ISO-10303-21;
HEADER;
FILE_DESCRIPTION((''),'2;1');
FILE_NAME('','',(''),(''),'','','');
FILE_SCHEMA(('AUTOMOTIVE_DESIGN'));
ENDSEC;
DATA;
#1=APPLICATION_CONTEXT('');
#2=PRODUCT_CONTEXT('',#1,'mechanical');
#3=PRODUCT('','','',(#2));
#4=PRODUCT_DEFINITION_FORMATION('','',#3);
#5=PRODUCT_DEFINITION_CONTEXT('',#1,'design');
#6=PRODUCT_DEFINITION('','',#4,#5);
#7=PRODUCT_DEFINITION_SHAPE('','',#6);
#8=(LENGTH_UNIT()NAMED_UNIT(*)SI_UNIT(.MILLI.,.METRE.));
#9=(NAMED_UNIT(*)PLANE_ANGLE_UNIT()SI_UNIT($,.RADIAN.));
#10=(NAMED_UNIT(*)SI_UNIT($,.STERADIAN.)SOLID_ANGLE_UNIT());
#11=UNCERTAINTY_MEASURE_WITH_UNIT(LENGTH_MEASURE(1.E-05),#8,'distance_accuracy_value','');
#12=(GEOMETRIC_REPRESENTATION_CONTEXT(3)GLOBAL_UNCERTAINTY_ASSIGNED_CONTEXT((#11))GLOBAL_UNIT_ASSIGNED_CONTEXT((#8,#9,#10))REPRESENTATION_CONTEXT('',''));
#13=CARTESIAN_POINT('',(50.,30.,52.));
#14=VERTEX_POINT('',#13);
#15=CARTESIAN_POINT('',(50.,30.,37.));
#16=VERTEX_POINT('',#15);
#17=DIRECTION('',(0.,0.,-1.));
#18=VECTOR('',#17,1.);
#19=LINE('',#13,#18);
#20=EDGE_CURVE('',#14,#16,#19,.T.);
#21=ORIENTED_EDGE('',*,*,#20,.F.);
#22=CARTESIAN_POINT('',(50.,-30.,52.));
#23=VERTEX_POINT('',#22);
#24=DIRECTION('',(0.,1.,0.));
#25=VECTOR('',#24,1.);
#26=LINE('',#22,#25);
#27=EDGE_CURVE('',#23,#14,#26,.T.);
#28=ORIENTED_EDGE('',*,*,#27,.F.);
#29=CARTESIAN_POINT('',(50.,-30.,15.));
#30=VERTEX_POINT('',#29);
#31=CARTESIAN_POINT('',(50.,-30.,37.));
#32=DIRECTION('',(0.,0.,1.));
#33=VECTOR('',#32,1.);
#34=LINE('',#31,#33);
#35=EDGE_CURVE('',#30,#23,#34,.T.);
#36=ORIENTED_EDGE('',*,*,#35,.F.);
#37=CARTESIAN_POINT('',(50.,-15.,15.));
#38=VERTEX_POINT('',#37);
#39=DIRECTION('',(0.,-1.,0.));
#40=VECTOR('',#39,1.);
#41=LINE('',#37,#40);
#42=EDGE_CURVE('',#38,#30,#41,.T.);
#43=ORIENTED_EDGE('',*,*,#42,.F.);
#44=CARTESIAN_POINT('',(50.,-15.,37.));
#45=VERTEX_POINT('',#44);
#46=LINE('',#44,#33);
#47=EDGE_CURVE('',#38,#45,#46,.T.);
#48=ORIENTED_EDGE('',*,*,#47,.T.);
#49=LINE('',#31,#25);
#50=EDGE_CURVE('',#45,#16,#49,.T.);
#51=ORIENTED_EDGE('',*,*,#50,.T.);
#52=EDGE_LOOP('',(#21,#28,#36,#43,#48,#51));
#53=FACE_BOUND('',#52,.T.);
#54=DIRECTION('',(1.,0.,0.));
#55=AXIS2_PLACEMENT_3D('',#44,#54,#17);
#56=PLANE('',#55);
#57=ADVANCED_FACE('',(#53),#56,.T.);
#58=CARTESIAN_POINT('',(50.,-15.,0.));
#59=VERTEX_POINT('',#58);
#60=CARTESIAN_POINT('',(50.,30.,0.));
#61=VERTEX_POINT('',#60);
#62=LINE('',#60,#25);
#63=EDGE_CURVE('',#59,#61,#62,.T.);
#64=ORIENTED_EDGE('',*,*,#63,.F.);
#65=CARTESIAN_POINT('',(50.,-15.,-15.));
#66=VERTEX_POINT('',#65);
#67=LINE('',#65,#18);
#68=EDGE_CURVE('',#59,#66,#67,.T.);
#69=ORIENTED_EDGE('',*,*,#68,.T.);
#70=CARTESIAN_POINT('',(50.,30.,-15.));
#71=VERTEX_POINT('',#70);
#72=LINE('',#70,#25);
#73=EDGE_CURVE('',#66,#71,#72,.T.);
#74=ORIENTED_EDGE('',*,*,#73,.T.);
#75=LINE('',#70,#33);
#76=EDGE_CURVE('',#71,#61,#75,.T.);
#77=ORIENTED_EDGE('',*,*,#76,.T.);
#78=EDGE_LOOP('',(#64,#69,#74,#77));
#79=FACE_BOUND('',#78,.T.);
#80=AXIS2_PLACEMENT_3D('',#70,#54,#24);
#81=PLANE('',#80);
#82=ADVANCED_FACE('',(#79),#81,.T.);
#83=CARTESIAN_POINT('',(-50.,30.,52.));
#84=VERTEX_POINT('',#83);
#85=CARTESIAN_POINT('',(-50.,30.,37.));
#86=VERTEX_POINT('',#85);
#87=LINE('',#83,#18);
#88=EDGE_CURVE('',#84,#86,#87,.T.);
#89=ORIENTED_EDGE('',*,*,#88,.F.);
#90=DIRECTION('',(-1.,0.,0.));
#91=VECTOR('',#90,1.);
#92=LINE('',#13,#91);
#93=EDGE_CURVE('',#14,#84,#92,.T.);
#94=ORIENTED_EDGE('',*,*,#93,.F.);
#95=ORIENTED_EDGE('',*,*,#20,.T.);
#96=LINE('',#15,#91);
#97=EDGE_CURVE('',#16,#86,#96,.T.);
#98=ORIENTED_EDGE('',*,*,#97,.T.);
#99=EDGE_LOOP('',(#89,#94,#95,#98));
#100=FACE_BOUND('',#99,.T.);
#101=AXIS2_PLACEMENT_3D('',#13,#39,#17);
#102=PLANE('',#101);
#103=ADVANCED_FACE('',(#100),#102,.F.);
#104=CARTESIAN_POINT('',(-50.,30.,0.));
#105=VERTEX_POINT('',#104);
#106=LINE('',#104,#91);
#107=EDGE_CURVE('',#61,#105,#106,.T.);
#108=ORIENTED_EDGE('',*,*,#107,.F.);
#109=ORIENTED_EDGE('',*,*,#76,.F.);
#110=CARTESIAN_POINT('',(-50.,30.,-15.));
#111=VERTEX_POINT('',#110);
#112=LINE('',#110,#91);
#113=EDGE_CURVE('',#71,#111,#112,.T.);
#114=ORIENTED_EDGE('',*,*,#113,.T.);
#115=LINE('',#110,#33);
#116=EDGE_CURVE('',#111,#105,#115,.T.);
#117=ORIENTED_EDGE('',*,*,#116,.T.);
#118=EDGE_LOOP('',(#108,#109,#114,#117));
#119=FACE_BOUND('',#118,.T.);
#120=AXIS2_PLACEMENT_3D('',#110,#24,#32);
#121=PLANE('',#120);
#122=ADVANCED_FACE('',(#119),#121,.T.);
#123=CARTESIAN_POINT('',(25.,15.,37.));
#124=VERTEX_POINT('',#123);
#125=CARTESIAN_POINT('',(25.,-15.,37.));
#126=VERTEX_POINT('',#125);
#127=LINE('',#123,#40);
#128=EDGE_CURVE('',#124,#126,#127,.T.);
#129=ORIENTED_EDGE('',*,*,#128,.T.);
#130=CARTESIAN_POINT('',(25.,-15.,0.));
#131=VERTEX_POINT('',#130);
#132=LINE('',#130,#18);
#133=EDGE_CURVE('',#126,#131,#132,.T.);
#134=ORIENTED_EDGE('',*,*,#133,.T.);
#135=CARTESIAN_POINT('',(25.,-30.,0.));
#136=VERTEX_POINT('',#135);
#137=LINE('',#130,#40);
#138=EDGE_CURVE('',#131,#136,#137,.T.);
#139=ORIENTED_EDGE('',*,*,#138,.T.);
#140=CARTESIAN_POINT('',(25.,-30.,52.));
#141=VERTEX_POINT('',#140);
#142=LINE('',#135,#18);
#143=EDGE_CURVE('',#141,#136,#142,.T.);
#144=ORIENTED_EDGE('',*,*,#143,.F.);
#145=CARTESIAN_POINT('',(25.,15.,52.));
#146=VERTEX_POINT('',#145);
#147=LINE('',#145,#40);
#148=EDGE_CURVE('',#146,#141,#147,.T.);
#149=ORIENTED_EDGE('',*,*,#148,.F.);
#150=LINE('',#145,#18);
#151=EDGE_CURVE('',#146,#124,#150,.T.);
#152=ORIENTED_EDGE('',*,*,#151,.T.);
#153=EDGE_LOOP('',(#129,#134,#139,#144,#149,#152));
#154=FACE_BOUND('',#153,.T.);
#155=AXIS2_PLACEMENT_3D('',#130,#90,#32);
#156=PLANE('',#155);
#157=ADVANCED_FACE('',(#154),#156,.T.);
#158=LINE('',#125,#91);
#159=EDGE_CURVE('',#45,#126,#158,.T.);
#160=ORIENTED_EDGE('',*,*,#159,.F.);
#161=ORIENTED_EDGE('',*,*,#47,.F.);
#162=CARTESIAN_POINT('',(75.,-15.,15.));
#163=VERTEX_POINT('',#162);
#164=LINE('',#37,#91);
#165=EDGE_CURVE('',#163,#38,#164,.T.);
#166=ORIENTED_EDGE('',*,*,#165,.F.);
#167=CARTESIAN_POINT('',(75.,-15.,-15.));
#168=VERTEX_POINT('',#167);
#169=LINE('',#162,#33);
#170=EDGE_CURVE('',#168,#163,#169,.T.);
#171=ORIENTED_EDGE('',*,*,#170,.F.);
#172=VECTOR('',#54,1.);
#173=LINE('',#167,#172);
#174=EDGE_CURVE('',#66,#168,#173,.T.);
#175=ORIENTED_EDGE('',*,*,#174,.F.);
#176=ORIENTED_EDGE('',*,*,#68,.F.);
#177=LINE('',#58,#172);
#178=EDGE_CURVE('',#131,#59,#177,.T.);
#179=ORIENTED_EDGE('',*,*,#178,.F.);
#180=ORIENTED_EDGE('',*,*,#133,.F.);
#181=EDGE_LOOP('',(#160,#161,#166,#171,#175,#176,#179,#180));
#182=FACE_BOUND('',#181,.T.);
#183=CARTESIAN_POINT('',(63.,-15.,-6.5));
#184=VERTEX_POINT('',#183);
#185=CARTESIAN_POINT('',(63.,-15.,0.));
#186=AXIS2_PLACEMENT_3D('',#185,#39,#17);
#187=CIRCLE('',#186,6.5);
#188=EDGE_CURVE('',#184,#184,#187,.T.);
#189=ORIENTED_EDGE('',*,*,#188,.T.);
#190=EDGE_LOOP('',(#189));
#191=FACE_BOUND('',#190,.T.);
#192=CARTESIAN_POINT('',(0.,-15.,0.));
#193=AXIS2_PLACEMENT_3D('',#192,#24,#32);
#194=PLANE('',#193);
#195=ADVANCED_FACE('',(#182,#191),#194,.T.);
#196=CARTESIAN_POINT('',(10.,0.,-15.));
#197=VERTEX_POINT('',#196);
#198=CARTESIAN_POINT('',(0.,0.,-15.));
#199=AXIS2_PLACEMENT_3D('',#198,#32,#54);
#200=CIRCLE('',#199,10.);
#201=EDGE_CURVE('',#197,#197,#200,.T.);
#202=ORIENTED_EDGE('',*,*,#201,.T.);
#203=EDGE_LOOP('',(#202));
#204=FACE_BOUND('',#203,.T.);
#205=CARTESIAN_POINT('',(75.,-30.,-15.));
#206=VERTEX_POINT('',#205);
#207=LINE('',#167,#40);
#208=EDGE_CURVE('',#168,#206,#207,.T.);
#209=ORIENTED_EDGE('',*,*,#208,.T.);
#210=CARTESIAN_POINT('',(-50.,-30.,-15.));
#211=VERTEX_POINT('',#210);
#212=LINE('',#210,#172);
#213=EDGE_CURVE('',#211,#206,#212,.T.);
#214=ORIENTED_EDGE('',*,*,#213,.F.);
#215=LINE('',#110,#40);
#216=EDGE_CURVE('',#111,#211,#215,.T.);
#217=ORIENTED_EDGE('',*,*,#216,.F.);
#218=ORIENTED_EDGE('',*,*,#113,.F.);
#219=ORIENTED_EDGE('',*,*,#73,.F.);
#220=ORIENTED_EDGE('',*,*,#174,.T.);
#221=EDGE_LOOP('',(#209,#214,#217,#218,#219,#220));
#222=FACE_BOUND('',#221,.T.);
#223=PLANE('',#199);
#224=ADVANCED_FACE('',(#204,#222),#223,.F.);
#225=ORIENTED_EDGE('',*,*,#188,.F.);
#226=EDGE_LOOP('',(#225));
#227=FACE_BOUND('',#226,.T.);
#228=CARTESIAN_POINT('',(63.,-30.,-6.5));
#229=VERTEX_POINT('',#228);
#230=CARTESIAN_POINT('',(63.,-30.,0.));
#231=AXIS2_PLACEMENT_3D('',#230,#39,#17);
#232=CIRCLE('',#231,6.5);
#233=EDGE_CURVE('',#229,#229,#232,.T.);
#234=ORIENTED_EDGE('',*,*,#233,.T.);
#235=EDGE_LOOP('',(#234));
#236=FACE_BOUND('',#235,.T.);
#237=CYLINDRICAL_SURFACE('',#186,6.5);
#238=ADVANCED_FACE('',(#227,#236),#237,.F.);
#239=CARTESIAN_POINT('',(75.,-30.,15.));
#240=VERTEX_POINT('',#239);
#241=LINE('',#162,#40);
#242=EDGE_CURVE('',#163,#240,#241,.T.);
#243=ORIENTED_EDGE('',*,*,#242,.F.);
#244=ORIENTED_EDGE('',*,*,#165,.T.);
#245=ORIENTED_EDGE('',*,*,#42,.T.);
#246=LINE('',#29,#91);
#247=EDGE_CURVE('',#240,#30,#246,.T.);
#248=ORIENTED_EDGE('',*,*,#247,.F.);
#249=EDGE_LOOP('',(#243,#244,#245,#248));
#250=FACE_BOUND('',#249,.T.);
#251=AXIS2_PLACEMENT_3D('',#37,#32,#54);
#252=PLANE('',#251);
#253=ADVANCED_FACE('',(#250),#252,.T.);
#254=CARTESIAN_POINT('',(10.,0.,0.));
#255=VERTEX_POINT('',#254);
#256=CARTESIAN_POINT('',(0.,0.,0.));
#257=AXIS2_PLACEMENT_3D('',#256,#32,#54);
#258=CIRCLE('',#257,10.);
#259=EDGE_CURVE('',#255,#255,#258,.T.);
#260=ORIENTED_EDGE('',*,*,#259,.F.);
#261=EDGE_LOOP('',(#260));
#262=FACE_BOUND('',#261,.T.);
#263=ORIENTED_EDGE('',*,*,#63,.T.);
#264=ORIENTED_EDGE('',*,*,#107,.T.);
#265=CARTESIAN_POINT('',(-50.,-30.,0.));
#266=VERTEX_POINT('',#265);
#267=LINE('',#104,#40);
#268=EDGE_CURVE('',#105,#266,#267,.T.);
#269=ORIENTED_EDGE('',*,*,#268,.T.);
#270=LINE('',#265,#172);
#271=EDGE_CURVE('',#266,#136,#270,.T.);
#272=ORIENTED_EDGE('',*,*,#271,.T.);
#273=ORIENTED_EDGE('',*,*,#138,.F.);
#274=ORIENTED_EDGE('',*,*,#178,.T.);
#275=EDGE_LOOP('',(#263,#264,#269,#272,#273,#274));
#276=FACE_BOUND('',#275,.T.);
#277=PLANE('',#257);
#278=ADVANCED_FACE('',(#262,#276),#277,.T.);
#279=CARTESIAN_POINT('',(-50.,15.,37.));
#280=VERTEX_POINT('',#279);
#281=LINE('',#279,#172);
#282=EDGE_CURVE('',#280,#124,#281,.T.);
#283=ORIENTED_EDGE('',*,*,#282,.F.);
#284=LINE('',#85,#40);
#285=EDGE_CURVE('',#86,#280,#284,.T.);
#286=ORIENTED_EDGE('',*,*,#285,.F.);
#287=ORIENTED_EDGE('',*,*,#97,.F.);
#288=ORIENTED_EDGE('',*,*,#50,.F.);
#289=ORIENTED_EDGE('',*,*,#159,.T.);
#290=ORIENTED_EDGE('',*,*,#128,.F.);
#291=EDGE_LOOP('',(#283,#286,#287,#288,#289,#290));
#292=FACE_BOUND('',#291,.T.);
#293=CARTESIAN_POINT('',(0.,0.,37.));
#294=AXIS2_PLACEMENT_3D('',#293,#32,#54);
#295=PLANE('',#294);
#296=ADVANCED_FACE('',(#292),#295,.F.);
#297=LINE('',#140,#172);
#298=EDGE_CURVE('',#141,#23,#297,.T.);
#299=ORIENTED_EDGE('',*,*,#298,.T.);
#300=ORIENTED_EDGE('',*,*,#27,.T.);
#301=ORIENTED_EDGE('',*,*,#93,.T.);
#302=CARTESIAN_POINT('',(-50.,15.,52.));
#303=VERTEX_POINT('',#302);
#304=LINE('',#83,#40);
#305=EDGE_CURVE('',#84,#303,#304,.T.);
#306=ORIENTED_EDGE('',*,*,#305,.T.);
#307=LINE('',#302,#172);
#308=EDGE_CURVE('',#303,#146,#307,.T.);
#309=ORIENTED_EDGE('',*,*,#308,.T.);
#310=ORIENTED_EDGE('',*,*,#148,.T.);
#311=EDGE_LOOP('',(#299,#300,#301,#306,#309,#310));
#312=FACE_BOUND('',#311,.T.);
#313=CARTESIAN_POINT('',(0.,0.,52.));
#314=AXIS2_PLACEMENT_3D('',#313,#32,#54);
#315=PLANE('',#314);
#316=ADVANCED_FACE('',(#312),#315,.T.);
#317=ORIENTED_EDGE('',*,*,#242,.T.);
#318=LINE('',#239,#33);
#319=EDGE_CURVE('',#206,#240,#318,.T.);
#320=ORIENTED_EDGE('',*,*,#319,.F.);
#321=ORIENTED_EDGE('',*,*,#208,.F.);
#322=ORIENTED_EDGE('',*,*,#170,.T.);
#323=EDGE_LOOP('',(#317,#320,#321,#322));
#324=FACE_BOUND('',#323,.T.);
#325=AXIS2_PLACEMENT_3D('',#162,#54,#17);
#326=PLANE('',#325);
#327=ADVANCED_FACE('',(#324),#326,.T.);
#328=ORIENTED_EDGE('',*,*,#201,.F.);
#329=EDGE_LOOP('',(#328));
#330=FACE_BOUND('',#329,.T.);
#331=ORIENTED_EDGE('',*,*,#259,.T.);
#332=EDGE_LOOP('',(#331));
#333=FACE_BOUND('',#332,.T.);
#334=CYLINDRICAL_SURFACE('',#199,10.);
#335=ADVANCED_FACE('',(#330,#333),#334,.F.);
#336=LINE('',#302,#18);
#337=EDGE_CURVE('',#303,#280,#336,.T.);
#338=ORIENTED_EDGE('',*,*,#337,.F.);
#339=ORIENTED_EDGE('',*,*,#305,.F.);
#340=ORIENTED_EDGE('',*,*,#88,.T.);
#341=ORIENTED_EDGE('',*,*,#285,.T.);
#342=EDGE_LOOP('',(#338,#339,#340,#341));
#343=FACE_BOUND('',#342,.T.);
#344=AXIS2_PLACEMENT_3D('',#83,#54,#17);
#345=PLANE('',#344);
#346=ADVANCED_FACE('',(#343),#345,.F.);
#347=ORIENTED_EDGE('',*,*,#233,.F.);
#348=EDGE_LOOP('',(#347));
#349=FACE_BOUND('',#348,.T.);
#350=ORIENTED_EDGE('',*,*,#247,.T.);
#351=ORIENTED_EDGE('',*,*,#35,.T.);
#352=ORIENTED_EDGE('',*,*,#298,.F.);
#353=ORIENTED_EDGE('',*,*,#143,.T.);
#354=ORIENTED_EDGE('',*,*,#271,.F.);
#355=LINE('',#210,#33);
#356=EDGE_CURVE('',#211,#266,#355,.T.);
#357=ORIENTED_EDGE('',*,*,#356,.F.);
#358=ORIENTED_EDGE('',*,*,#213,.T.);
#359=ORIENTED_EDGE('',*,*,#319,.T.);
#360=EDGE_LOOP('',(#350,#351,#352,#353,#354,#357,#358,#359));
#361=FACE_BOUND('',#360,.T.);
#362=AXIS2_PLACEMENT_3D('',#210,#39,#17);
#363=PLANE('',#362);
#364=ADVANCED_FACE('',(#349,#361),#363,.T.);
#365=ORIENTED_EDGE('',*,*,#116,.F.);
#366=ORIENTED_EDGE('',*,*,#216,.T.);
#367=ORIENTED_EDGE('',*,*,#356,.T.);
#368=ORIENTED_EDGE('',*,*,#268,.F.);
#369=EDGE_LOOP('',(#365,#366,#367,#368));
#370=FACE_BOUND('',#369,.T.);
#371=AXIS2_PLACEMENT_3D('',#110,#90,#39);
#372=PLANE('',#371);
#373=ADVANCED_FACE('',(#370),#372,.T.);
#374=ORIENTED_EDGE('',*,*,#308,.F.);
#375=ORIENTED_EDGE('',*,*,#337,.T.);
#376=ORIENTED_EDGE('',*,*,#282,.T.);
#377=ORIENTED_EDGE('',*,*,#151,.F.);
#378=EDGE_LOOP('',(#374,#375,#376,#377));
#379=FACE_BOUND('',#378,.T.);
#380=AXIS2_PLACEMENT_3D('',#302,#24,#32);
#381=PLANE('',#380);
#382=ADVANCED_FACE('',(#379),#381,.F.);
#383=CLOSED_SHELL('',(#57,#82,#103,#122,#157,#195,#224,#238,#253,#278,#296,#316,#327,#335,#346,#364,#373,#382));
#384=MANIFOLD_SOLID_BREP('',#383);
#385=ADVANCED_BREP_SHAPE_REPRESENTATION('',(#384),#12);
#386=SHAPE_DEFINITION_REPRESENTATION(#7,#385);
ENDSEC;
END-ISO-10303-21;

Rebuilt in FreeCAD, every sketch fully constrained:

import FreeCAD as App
import Part
import Sketcher

V = App.Vector

doc = App.newDocument("Part")
params = doc.addObject("Spreadsheet::Sheet", "Params")
for row, (alias, value) in enumerate([
    ("sketch1_diameter", "20 mm"),
    ("sketch1_width", "100 mm"),
    ("sketch1_height", "60 mm"),
    ("pad1_length", "15 mm"),
    ("sketch2_width", "75 mm"),
    ("sketch2_width2", "25 mm"),
    ("sketch2_height", "15 mm"),
    ("sketch2_height2", "45 mm"),
    ("pad2_length", "15 mm"),
    ("sketch3_diameter", "13 mm"),
    ("sketch3_width", "25 mm"),
    ("sketch3_height", "37 mm"),
    ("sketch3_height2", "15 mm"),
    ("pad3_length", "15 mm"),
], start=1):
    params.set(f"A{row}", alias)
    params.set(f"B{row}", "=" + value)
    params.setAlias(f"B{row}", alias)

body = doc.addObject("PartDesign::Body", "Body")

sketch1 = doc.addObject("Sketcher::SketchObject", "Sketch")
body.addObject(sketch1)
sketch1.AttachmentSupport = (doc.XY_Plane, [""])
sketch1.MapMode = "FlatFace"
sketch1.addGeometry(Part.LineSegment(V(-50, 30, 0), V(-50, -30, 0)), False)
sketch1.addGeometry(Part.LineSegment(V(-50, -30, 0), V(50, -30, 0)), False)
sketch1.addGeometry(Part.LineSegment(V(50, -30, 0), V(50, 30, 0)), False)
sketch1.addGeometry(Part.LineSegment(V(50, 30, 0), V(-50, 30, 0)), False)
sketch1.addGeometry(Part.Circle(V(0, 0, 0), V(0, 0, 1), 10), False)
sketch1.addConstraint(Sketcher.Constraint("Coincident", 0, 2, 1, 1))
sketch1.addConstraint(Sketcher.Constraint("Coincident", 1, 2, 2, 1))
sketch1.addConstraint(Sketcher.Constraint("Coincident", 2, 2, 3, 1))
sketch1.addConstraint(Sketcher.Constraint("Coincident", 3, 2, 0, 1))
sketch1.addConstraint(Sketcher.Constraint("Vertical", 0))
sketch1.addConstraint(Sketcher.Constraint("Horizontal", 1))
sketch1.addConstraint(Sketcher.Constraint("Vertical", 2))
sketch1.addConstraint(Sketcher.Constraint("Horizontal", 3))
sketch1.addConstraint(Sketcher.Constraint("Coincident", 4, 3, -1, 1))
sketch1.addConstraint(Sketcher.Constraint("Symmetric", 0, 2, 2, 2, -1, 1))
sketch1.addConstraint(Sketcher.Constraint("Diameter", 4, 20.0))
sketch1.addConstraint(Sketcher.Constraint("DistanceX", 1, 1, 1, 2, 100.0))
sketch1.addConstraint(Sketcher.Constraint("DistanceY", 0, 2, 0, 1, 60.0))
sketch1.setExpression("Constraints[10]", "Params.sketch1_diameter")
sketch1.setExpression("Constraints[11]", "Params.sketch1_width")
sketch1.setExpression("Constraints[12]", "Params.sketch1_height")
pad1 = doc.addObject("PartDesign::Pad", "Pad")
body.addObject(pad1)
pad1.Profile = sketch1
pad1.setExpression("Length", "Params.pad1_length")
pad1.Reversed = True
body2 = doc.addObject("PartDesign::Body", "Body001")

sketch2 = doc.addObject("Sketcher::SketchObject", "Sketch001")
body2.addObject(sketch2)
sketch2.AttachmentSupport = (doc.getObject("XY_Plane001"), [""])
sketch2.MapMode = "FlatFace"
sketch2.AttachmentOffset = App.Placement(V(0, 0, 37), App.Rotation())
sketch2.addGeometry(Part.LineSegment(V(-50, 30, 0), V(-50, 15, 0)), False)
sketch2.addGeometry(Part.LineSegment(V(-50, 15, 0), V(25, 15, 0)), False)
sketch2.addGeometry(Part.LineSegment(V(25, 15, 0), V(25, -30, 0)), False)
sketch2.addGeometry(Part.LineSegment(V(25, -30, 0), V(50, -30, 0)), False)
sketch2.addGeometry(Part.LineSegment(V(50, -30, 0), V(50, 30, 0)), False)
sketch2.addGeometry(Part.LineSegment(V(50, 30, 0), V(-50, 30, 0)), False)
sketch2.addConstraint(Sketcher.Constraint("Coincident", 0, 2, 1, 1))
sketch2.addConstraint(Sketcher.Constraint("Coincident", 1, 2, 2, 1))
sketch2.addConstraint(Sketcher.Constraint("Coincident", 2, 2, 3, 1))
sketch2.addConstraint(Sketcher.Constraint("Coincident", 3, 2, 4, 1))
sketch2.addConstraint(Sketcher.Constraint("Coincident", 4, 2, 5, 1))
sketch2.addConstraint(Sketcher.Constraint("Coincident", 5, 2, 0, 1))
sketch2.addConstraint(Sketcher.Constraint("Vertical", 0))
sketch2.addConstraint(Sketcher.Constraint("Horizontal", 1))
sketch2.addConstraint(Sketcher.Constraint("Vertical", 2))
sketch2.addConstraint(Sketcher.Constraint("Horizontal", 3))
sketch2.addConstraint(Sketcher.Constraint("Vertical", 4))
sketch2.addConstraint(Sketcher.Constraint("Horizontal", 5))
sketch2.addConstraint(Sketcher.Constraint("Symmetric", 3, 2, 5, 2, -1, 1))
sketch2.addConstraint(Sketcher.Constraint("DistanceX", 1, 1, 1, 2, 75.0))
sketch2.addConstraint(Sketcher.Constraint("DistanceX", 3, 1, 3, 2, 25.0))
sketch2.addConstraint(Sketcher.Constraint("DistanceY", 0, 2, 0, 1, 15.0))
sketch2.addConstraint(Sketcher.Constraint("DistanceY", 2, 2, 2, 1, 45.0))
sketch2.setExpression("Constraints[13]", "Params.sketch2_width")
sketch2.setExpression("Constraints[14]", "Params.sketch2_width2")
sketch2.setExpression("Constraints[15]", "Params.sketch2_height")
sketch2.setExpression("Constraints[16]", "Params.sketch2_height2")
pad2 = doc.addObject("PartDesign::Pad", "Pad001")
body2.addObject(pad2)
pad2.Profile = sketch2
pad2.setExpression("Length", "Params.pad2_length")
body.AllowCompound = True
doc.recompute()

boolean = doc.addObject("PartDesign::Boolean", "Boolean")
body.addObject(boolean)
boolean.Type = "Fuse"
boolean.addObjects([body2])

sketch3 = doc.addObject("Sketcher::SketchObject", "Sketch002")
body.addObject(sketch3)
sketch3.AttachmentSupport = (doc.XZ_Plane, [""])
sketch3.MapMode = "FlatFace"
sketch3.AttachmentOffset = App.Placement(V(0, 0, 30), App.Rotation())
sketch3.addGeometry(Part.LineSegment(V(25, 37, 0), V(25, 0, 0)), False)
sketch3.addGeometry(Part.LineSegment(V(25, 0, 0), V(50, 0, 0)), False)
sketch3.addGeometry(Part.LineSegment(V(50, 0, 0), V(50, -15, 0)), False)
sketch3.addGeometry(Part.LineSegment(V(50, -15, 0), V(75, -15, 0)), False)
sketch3.addGeometry(Part.LineSegment(V(75, -15, 0), V(75, 15, 0)), False)
sketch3.addGeometry(Part.LineSegment(V(75, 15, 0), V(50, 15, 0)), False)
sketch3.addGeometry(Part.LineSegment(V(50, 15, 0), V(50, 37, 0)), False)
sketch3.addGeometry(Part.LineSegment(V(50, 37, 0), V(25, 37, 0)), False)
sketch3.addGeometry(Part.Circle(V(63, 0, 0), V(0, 0, 1), 6), False)
sketch3.addConstraint(Sketcher.Constraint("Coincident", 0, 2, 1, 1))
sketch3.addConstraint(Sketcher.Constraint("Coincident", 1, 2, 2, 1))
sketch3.addConstraint(Sketcher.Constraint("Coincident", 2, 2, 3, 1))
sketch3.addConstraint(Sketcher.Constraint("Coincident", 3, 2, 4, 1))
sketch3.addConstraint(Sketcher.Constraint("Coincident", 4, 2, 5, 1))
sketch3.addConstraint(Sketcher.Constraint("Coincident", 5, 2, 6, 1))
sketch3.addConstraint(Sketcher.Constraint("Coincident", 6, 2, 7, 1))
sketch3.addConstraint(Sketcher.Constraint("Coincident", 7, 2, 0, 1))
sketch3.addConstraint(Sketcher.Constraint("Vertical", 0))
sketch3.addConstraint(Sketcher.Constraint("Horizontal", 1))
sketch3.addConstraint(Sketcher.Constraint("Vertical", 2))
sketch3.addConstraint(Sketcher.Constraint("Horizontal", 3))
sketch3.addConstraint(Sketcher.Constraint("Vertical", 4))
sketch3.addConstraint(Sketcher.Constraint("Horizontal", 5))
sketch3.addConstraint(Sketcher.Constraint("Vertical", 6))
sketch3.addConstraint(Sketcher.Constraint("Horizontal", 7))
sketch3.addConstraint(Sketcher.Constraint("Symmetric", 2, 2, 5, 2, -1))
sketch3.addConstraint(Sketcher.Constraint("PointOnObject", 8, 3, -1))
sketch3.addConstraint(Sketcher.Constraint("PointOnObject", 0, 2, -1))
sketch3.addConstraint(Sketcher.Constraint("Equal", 1, 3))
sketch3.addConstraint(Sketcher.Constraint("Diameter", 8, 13.0))
sketch3.addConstraint(Sketcher.Constraint("DistanceX", 1, 1, 1, 2, 25.0))
sketch3.addConstraint(Sketcher.Constraint("DistanceY", 0, 2, 0, 1, 37.0))
sketch3.addConstraint(Sketcher.Constraint("DistanceY", 2, 2, 2, 1, 15.0))
sketch3.addConstraint(Sketcher.Constraint("DistanceX", -1, 1, 8, 3, 63.0))
sketch3.addConstraint(Sketcher.Constraint("DistanceX", -1, 1, 0, 2, 25.0))
sketch3.setExpression("Constraints[20]", "Params.sketch3_diameter")
sketch3.setExpression("Constraints[21]", "Params.sketch3_width")
sketch3.setExpression("Constraints[22]", "Params.sketch3_height")
sketch3.setExpression("Constraints[23]", "Params.sketch3_height2")
pad3 = doc.addObject("PartDesign::Pad", "Pad002")
body.addObject(pad3)
pad3.Profile = sketch3
pad3.setExpression("Length", "Params.pad3_length")
pad3.Reversed = True

doc.recompute()
